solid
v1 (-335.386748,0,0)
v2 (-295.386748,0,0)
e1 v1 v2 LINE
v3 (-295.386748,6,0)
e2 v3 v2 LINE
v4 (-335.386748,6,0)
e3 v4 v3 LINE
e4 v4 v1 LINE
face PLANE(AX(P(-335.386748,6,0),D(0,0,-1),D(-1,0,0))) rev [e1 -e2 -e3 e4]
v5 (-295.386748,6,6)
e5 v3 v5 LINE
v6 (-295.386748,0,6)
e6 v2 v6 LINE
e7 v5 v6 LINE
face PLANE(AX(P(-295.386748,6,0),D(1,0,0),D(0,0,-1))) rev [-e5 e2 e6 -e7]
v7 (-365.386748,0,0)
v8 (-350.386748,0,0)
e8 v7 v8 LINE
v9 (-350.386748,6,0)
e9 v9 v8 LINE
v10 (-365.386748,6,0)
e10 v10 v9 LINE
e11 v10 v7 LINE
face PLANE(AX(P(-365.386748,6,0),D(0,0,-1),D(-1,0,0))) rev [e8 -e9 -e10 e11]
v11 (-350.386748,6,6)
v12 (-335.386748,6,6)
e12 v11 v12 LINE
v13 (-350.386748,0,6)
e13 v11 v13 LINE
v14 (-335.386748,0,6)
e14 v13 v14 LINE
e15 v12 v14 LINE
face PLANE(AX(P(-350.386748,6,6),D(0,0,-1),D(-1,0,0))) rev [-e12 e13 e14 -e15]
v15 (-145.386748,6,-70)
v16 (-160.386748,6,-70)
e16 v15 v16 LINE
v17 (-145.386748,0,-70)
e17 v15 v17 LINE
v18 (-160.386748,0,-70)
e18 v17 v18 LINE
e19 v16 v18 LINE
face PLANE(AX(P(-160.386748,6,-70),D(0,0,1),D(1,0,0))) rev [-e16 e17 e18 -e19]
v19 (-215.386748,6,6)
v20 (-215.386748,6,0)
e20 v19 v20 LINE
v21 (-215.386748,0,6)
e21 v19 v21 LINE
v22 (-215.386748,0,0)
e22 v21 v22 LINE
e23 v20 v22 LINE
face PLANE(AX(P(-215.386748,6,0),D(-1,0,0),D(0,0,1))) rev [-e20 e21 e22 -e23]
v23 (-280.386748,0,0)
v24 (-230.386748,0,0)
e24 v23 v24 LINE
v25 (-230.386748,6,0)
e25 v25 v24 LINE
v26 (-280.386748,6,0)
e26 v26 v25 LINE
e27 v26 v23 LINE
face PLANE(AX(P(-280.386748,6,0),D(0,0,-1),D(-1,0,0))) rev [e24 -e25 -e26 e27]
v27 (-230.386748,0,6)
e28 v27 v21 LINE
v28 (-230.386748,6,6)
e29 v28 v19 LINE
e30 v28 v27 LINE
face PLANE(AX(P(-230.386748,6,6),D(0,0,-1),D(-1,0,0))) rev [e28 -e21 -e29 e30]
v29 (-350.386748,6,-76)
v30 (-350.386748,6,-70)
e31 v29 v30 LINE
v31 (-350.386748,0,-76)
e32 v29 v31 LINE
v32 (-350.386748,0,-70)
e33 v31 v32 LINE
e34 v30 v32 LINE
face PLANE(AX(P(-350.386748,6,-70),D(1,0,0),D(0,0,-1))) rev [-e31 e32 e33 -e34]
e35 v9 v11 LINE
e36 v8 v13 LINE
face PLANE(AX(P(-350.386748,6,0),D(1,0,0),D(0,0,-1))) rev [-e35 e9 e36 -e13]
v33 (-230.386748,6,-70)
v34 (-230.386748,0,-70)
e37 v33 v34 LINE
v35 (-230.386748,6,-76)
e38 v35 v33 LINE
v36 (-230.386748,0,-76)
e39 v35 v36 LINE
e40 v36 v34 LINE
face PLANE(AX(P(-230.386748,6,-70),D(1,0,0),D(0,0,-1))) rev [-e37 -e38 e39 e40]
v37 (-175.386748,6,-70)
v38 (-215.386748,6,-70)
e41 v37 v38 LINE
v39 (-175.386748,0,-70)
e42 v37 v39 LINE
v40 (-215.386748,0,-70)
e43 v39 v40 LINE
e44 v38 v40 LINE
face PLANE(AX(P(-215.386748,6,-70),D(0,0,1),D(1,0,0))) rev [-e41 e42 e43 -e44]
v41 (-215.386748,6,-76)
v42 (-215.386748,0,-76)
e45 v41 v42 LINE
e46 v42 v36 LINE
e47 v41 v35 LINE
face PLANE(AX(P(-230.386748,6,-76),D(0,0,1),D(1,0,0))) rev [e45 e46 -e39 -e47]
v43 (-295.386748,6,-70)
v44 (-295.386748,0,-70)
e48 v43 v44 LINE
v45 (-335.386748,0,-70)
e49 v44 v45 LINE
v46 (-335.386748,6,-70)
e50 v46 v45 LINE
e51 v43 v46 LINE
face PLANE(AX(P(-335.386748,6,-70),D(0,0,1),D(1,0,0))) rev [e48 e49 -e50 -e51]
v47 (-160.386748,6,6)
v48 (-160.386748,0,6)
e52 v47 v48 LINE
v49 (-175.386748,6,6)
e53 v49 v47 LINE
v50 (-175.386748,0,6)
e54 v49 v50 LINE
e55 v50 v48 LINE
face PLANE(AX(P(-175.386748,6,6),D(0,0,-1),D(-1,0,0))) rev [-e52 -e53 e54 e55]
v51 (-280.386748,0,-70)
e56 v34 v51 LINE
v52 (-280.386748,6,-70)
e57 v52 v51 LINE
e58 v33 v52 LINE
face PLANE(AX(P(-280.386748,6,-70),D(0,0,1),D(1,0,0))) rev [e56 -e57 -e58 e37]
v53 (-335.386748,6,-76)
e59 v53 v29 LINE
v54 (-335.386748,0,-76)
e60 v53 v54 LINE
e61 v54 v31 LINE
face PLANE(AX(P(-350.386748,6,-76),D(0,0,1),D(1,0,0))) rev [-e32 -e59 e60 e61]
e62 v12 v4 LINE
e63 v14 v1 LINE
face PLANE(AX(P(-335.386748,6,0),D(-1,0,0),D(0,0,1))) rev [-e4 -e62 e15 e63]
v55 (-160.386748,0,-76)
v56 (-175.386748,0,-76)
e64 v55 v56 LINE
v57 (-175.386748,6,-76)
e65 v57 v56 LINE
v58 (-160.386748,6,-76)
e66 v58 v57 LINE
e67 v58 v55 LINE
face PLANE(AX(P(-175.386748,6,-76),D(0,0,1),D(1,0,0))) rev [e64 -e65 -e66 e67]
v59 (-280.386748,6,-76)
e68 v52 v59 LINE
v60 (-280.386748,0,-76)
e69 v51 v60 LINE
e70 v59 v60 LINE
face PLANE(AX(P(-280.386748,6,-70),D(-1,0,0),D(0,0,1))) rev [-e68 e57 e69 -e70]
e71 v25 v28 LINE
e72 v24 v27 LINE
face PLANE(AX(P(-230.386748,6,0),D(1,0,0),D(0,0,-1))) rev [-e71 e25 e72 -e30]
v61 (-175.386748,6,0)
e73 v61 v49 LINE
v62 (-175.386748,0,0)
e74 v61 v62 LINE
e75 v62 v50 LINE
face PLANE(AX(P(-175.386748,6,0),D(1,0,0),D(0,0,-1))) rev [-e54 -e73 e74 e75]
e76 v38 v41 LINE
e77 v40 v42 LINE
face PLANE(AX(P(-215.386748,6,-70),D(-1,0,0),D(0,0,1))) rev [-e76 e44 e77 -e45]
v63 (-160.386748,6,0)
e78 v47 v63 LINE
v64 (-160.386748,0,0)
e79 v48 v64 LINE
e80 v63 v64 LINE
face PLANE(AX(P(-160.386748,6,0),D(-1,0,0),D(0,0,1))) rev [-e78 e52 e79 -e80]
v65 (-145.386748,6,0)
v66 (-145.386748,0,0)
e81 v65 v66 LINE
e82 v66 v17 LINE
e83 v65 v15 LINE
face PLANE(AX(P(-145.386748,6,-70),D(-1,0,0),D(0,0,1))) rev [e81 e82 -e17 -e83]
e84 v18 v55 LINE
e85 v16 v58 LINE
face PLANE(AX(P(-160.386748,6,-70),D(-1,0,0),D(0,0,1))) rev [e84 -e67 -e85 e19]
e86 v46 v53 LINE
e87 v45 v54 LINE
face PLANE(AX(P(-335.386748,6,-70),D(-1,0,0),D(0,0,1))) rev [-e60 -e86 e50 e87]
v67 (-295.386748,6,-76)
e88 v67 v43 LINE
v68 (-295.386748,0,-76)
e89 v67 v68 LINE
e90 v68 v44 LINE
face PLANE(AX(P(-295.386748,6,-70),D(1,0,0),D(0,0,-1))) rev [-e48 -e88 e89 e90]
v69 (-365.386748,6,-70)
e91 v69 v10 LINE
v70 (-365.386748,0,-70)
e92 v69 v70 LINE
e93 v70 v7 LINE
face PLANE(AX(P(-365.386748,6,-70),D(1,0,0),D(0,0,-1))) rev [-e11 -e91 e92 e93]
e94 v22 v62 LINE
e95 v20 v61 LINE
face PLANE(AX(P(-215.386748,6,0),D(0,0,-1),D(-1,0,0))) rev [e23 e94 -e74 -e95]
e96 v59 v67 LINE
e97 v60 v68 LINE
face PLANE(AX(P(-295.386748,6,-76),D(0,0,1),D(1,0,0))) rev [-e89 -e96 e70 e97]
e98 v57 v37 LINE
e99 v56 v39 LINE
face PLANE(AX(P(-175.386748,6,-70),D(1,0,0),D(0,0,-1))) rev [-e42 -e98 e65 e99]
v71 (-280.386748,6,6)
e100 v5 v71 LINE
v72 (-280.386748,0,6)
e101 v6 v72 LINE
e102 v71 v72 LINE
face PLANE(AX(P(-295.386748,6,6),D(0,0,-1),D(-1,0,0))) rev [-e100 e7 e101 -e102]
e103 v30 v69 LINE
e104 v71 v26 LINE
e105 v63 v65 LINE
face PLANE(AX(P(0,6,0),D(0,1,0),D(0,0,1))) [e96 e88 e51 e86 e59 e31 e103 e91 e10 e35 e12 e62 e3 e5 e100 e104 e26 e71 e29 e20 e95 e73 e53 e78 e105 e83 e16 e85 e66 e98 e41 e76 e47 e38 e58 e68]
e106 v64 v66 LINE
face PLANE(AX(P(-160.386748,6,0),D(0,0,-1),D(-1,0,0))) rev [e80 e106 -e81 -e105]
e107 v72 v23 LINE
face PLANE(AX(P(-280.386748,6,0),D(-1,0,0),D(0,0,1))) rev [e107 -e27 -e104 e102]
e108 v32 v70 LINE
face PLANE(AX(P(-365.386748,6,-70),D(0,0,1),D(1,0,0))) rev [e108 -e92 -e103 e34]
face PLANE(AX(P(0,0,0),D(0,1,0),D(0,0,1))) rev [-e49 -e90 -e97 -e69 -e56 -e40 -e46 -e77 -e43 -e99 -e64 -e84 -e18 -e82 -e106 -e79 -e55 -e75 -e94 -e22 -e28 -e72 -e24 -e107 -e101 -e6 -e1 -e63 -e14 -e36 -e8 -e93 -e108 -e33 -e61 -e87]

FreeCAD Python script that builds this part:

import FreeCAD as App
import Part
import Sketcher

doc = App.newDocument("Part")
body = doc.addObject("PartDesign::Body", "Body")

sketch1 = body.newObject("Sketcher::SketchObject", "Sketch")
sketch1.AttachmentSupport = (doc.getObject("XZ_Plane"), [""])
sketch1.MapMode = "FlatFace"
sketch1.addGeometry(Part.LineSegment(App.Vector(-145, -70, 0), App.Vector(-160, -70, 0)), False)
sketch1.addGeometry(Part.LineSegment(App.Vector(-160, -70, 0), App.Vector(-160, -76, 0)), False)
sketch1.addGeometry(Part.LineSegment(App.Vector(-160, -76, 0), App.Vector(-175, -76, 0)), False)
sketch1.addGeometry(Part.LineSegment(App.Vector(-175, -76, 0), App.Vector(-175, -70, 0)), False)
sketch1.addGeometry(Part.LineSegment(App.Vector(-175, -70, 0), App.Vector(-215, -70, 0)), False)
sketch1.addGeometry(Part.LineSegment(App.Vector(-215, -70, 0), App.Vector(-215, -76, 0)), False)
sketch1.addGeometry(Part.LineSegment(App.Vector(-215, -76, 0), App.Vector(-230, -76, 0)), False)
sketch1.addGeometry(Part.LineSegment(App.Vector(-230, -76, 0), App.Vector(-230, -70, 0)), False)
sketch1.addGeometry(Part.LineSegment(App.Vector(-230, -70, 0), App.Vector(-280, -70, 0)), False)
sketch1.addGeometry(Part.LineSegment(App.Vector(-280, -70, 0), App.Vector(-280, -76, 0)), False)
sketch1.addGeometry(Part.LineSegment(App.Vector(-280, -76, 0), App.Vector(-295, -76, 0)), False)
sketch1.addGeometry(Part.LineSegment(App.Vector(-295, -76, 0), App.Vector(-295, -70, 0)), False)
sketch1.addGeometry(Part.LineSegment(App.Vector(-295, -70, 0), App.Vector(-335, -70, 0)), False)
sketch1.addGeometry(Part.LineSegment(App.Vector(-335, -70, 0), App.Vector(-335, -76, 0)), False)
sketch1.addGeometry(Part.LineSegment(App.Vector(-335, -76, 0), App.Vector(-350, -76, 0)), False)
sketch1.addGeometry(Part.LineSegment(App.Vector(-350, -76, 0), App.Vector(-350, -70, 0)), False)
sketch1.addGeometry(Part.LineSegment(App.Vector(-350, -70, 0), App.Vector(-365, -70, 0)), False)
sketch1.addGeometry(Part.LineSegment(App.Vector(-365, -70, 0), App.Vector(-365, 0, 0)), False)
sketch1.addGeometry(Part.LineSegment(App.Vector(-365, 0, 0), App.Vector(-350, 0, 0)), False)
sketch1.addGeometry(Part.LineSegment(App.Vector(-350, 0, 0), App.Vector(-350, 6, 0)), False)
sketch1.addGeometry(Part.LineSegment(App.Vector(-350, 6, 0), App.Vector(-335, 6, 0)), False)
sketch1.addGeometry(Part.LineSegment(App.Vector(-335, 6, 0), App.Vector(-335, 0, 0)), False)
sketch1.addGeometry(Part.LineSegment(App.Vector(-335, 0, 0), App.Vector(-295, 0, 0)), False)
sketch1.addGeometry(Part.LineSegment(App.Vector(-295, 0, 0), App.Vector(-295, 6, 0)), False)
sketch1.addGeometry(Part.LineSegment(App.Vector(-295, 6, 0), App.Vector(-280, 6, 0)), False)
sketch1.addGeometry(Part.LineSegment(App.Vector(-280, 6, 0), App.Vector(-280, 0, 0)), False)
sketch1.addGeometry(Part.LineSegment(App.Vector(-280, 0, 0), App.Vector(-230, 0, 0)), False)
sketch1.addGeometry(Part.LineSegment(App.Vector(-230, 0, 0), App.Vector(-230, 6, 0)), False)
sketch1.addGeometry(Part.LineSegment(App.Vector(-230, 6, 0), App.Vector(-215, 6, 0)), False)
sketch1.addGeometry(Part.LineSegment(App.Vector(-215, 6, 0), App.Vector(-215, 0, 0)), False)
sketch1.addGeometry(Part.LineSegment(App.Vector(-215, 0, 0), App.Vector(-175, 0, 0)), False)
sketch1.addGeometry(Part.LineSegment(App.Vector(-175, 0, 0), App.Vector(-175, 6, 0)), False)
sketch1.addGeometry(Part.LineSegment(App.Vector(-175, 6, 0), App.Vector(-160, 6, 0)), False)
sketch1.addGeometry(Part.LineSegment(App.Vector(-160, 6, 0), App.Vector(-160, 0, 0)), False)
sketch1.addGeometry(Part.LineSegment(App.Vector(-160, 0, 0), App.Vector(-145, 0, 0)), False)
sketch1.addGeometry(Part.LineSegment(App.Vector(-145, 0, 0), App.Vector(-145, -70, 0)), False)
sketch1.addConstraint(Sketcher.Constraint("Coincident", 0, 2, 1, 1))
sketch1.addConstraint(Sketcher.Constraint("Coincident", 1, 2, 2, 1))
sketch1.addConstraint(Sketcher.Constraint("Coincident", 2, 2, 3, 1))
sketch1.addConstraint(Sketcher.Constraint("Coincident", 3, 2, 4, 1))
sketch1.addConstraint(Sketcher.Constraint("Coincident", 4, 2, 5, 1))
sketch1.addConstraint(Sketcher.Constraint("Coincident", 5, 2, 6, 1))
sketch1.addConstraint(Sketcher.Constraint("Coincident", 6, 2, 7, 1))
sketch1.addConstraint(Sketcher.Constraint("Coincident", 7, 2, 8, 1))
sketch1.addConstraint(Sketcher.Constraint("Coincident", 8, 2, 9, 1))
sketch1.addConstraint(Sketcher.Constraint("Coincident", 9, 2, 10, 1))
sketch1.addConstraint(Sketcher.Constraint("Coincident", 10, 2, 11, 1))
sketch1.addConstraint(Sketcher.Constraint("Coincident", 11, 2, 12, 1))
sketch1.addConstraint(Sketcher.Constraint("Coincident", 12, 2, 13, 1))
sketch1.addConstraint(Sketcher.Constraint("Coincident", 13, 2, 14, 1))
sketch1.addConstraint(Sketcher.Constraint("Coincident", 14, 2, 15, 1))
sketch1.addConstraint(Sketcher.Constraint("Coincident", 15, 2, 16, 1))
sketch1.addConstraint(Sketcher.Constraint("Coincident", 16, 2, 17, 1))
sketch1.addConstraint(Sketcher.Constraint("Coincident", 17, 2, 18, 1))
sketch1.addConstraint(Sketcher.Constraint("Coincident", 18, 2, 19, 1))
sketch1.addConstraint(Sketcher.Constraint("Coincident", 19, 2, 20, 1))
sketch1.addConstraint(Sketcher.Constraint("Coincident", 20, 2, 21, 1))
sketch1.addConstraint(Sketcher.Constraint("Coincident", 21, 2, 22, 1))
sketch1.addConstraint(Sketcher.Constraint("Coincident", 22, 2, 23, 1))
sketch1.addConstraint(Sketcher.Constraint("Coincident", 23, 2, 24, 1))
sketch1.addConstraint(Sketcher.Constraint("Coincident", 24, 2, 25, 1))
sketch1.addConstraint(Sketcher.Constraint("Coincident", 25, 2, 26, 1))
sketch1.addConstraint(Sketcher.Constraint("Coincident", 26, 2, 27, 1))
sketch1.addConstraint(Sketcher.Constraint("Coincident", 27, 2, 28, 1))
sketch1.addConstraint(Sketcher.Constraint("Coincident", 28, 2, 29, 1))
sketch1.addConstraint(Sketcher.Constraint("Coincident", 29, 2, 30, 1))
sketch1.addConstraint(Sketcher.Constraint("Coincident", 30, 2, 31, 1))
sketch1.addConstraint(Sketcher.Constraint("Coincident", 31, 2, 32, 1))
sketch1.addConstraint(Sketcher.Constraint("Coincident", 32, 2, 33, 1))
sketch1.addConstraint(Sketcher.Constraint("Coincident", 33, 2, 34, 1))
sketch1.addConstraint(Sketcher.Constraint("Coincident", 34, 2, 35, 1))
sketch1.addConstraint(Sketcher.Constraint("Coincident", 35, 2, 0, 1))
sketch1.addConstraint(Sketcher.Constraint("Horizontal", 0))
sketch1.addConstraint(Sketcher.Constraint("Vertical", 1))
sketch1.addConstraint(Sketcher.Constraint("Horizontal", 2))
sketch1.addConstraint(Sketcher.Constraint("Vertical", 3))
sketch1.addConstraint(Sketcher.Constraint("Horizontal", 4))
sketch1.addConstraint(Sketcher.Constraint("Vertical", 5))
sketch1.addConstraint(Sketcher.Constraint("Horizontal", 6))
sketch1.addConstraint(Sketcher.Constraint("Vertical", 7))
sketch1.addConstraint(Sketcher.Constraint("Horizontal", 8))
sketch1.addConstraint(Sketcher.Constraint("Vertical", 9))
sketch1.addConstraint(Sketcher.Constraint("Horizontal", 10))
sketch1.addConstraint(Sketcher.Constraint("Vertical", 11))
sketch1.addConstraint(Sketcher.Constraint("Horizontal", 12))
sketch1.addConstraint(Sketcher.Constraint("Vertical", 13))
sketch1.addConstraint(Sketcher.Constraint("Horizontal", 14))
sketch1.addConstraint(Sketcher.Constraint("Vertical", 15))
sketch1.addConstraint(Sketcher.Constraint("Horizontal", 16))
sketch1.addConstraint(Sketcher.Constraint("Vertical", 17))
sketch1.addConstraint(Sketcher.Constraint("Horizontal", 18))
sketch1.addConstraint(Sketcher.Constraint("Vertical", 19))
sketch1.addConstraint(Sketcher.Constraint("Horizontal", 20))
sketch1.addConstraint(Sketcher.Constraint("Vertical", 21))
sketch1.addConstraint(Sketcher.Constraint("Horizontal", 22))
sketch1.addConstraint(Sketcher.Constraint("Vertical", 23))
sketch1.addConstraint(Sketcher.Constraint("Horizontal", 24))
sketch1.addConstraint(Sketcher.Constraint("Vertical", 25))
sketch1.addConstraint(Sketcher.Constraint("Horizontal", 26))
sketch1.addConstraint(Sketcher.Constraint("Vertical", 27))
sketch1.addConstraint(Sketcher.Constraint("Horizontal", 28))
sketch1.addConstraint(Sketcher.Constraint("Vertical", 29))
sketch1.addConstraint(Sketcher.Constraint("Horizontal", 30))
sketch1.addConstraint(Sketcher.Constraint("Vertical", 31))
sketch1.addConstraint(Sketcher.Constraint("Horizontal", 32))
sketch1.addConstraint(Sketcher.Constraint("Vertical", 33))
sketch1.addConstraint(Sketcher.Constraint("Horizontal", 34))
sketch1.addConstraint(Sketcher.Constraint("Vertical", 35))
sketch1.addConstraint(Sketcher.Constraint("PointOnObject", 17, 2, -1))
sketch1.addConstraint(Sketcher.Constraint("PointOnObject", 21, 2, -1))
sketch1.addConstraint(Sketcher.Constraint("PointOnObject", 25, 2, -1))
sketch1.addConstraint(Sketcher.Constraint("PointOnObject", 29, 2, -1))
sketch1.addConstraint(Sketcher.Constraint("PointOnObject", 33, 2, -1))
sketch1.addConstraint(Sketcher.Constraint("Horizontal", 0, 2, 3, 2))
sketch1.addConstraint(Sketcher.Constraint("Horizontal", 2, 2, 5, 2))
sketch1.addConstraint(Sketcher.Constraint("Horizontal", 4, 2, 7, 2))
sketch1.addConstraint(Sketcher.Constraint("Horizontal", 6, 2, 9, 2))
sketch1.addConstraint(Sketcher.Constraint("Horizontal", 8, 2, 11, 2))
sketch1.addConstraint(Sketcher.Constraint("Horizontal", 10, 2, 13, 2))
sketch1.addConstraint(Sketcher.Constraint("Horizontal", 12, 2, 15, 2))
sketch1.addConstraint(Sketcher.Constraint("Horizontal", 20, 2, 23, 2))
sketch1.addConstraint(Sketcher.Constraint("Horizontal", 24, 2, 27, 2))
sketch1.addConstraint(Sketcher.Constraint("Horizontal", 28, 2, 31, 2))
sketch1.addConstraint(Sketcher.Constraint("Vertical", 15, 2, 18, 2))
sketch1.addConstraint(Sketcher.Constraint("Vertical", 13, 2, 20, 2))
sketch1.addConstraint(Sketcher.Constraint("Vertical", 11, 2, 22, 2))
sketch1.addConstraint(Sketcher.Constraint("Vertical", 9, 2, 24, 2))
sketch1.addConstraint(Sketcher.Constraint("Vertical", 7, 2, 26, 2))
sketch1.addConstraint(Sketcher.Constraint("Vertical", 5, 2, 28, 2))
sketch1.addConstraint(Sketcher.Constraint("Vertical", 3, 2, 30, 2))
sketch1.addConstraint(Sketcher.Constraint("Vertical", 1, 2, 32, 2))
sketch1.addConstraint(Sketcher.Constraint("Equal", 0, 2))
sketch1.addConstraint(Sketcher.Constraint("Equal", 2, 6))
sketch1.addConstraint(Sketcher.Constraint("Equal", 6, 10))
sketch1.addConstraint(Sketcher.Constraint("Equal", 4, 12))
sketch1.addConstraint(Sketcher.Constraint("Equal", 10, 14))
sketch1.addConstraint(Sketcher.Constraint("Equal", 14, 16))
sketch1.addConstraint(Sketcher.Constraint("Equal", 15, 19))
sketch1.addConstraint(Sketcher.Constraint("DistanceX", 0, 2, 0, 1, 15.0))
sketch1.addConstraint(Sketcher.Constraint("DistanceX", 4, 2, 4, 1, 40.0))
sketch1.addConstraint(Sketcher.Constraint("DistanceX", 8, 2, 8, 1, 50.0))
sketch1.addConstraint(Sketcher.Constraint("DistanceY", 1, 2, 1, 1, 6.0))
sketch1.addConstraint(Sketcher.Constraint("DistanceY", 17, 1, 17, 2, 70.0))
sketch1.addConstraint(Sketcher.Constraint("DistanceX", 0, 2, -1, 1, 160.386748))
pad1 = body.newObject("PartDesign::Pad", "Pad")
pad1.Profile = sketch1
pad1.Length = 6
pad1.Reversed = True

doc.recompute()
